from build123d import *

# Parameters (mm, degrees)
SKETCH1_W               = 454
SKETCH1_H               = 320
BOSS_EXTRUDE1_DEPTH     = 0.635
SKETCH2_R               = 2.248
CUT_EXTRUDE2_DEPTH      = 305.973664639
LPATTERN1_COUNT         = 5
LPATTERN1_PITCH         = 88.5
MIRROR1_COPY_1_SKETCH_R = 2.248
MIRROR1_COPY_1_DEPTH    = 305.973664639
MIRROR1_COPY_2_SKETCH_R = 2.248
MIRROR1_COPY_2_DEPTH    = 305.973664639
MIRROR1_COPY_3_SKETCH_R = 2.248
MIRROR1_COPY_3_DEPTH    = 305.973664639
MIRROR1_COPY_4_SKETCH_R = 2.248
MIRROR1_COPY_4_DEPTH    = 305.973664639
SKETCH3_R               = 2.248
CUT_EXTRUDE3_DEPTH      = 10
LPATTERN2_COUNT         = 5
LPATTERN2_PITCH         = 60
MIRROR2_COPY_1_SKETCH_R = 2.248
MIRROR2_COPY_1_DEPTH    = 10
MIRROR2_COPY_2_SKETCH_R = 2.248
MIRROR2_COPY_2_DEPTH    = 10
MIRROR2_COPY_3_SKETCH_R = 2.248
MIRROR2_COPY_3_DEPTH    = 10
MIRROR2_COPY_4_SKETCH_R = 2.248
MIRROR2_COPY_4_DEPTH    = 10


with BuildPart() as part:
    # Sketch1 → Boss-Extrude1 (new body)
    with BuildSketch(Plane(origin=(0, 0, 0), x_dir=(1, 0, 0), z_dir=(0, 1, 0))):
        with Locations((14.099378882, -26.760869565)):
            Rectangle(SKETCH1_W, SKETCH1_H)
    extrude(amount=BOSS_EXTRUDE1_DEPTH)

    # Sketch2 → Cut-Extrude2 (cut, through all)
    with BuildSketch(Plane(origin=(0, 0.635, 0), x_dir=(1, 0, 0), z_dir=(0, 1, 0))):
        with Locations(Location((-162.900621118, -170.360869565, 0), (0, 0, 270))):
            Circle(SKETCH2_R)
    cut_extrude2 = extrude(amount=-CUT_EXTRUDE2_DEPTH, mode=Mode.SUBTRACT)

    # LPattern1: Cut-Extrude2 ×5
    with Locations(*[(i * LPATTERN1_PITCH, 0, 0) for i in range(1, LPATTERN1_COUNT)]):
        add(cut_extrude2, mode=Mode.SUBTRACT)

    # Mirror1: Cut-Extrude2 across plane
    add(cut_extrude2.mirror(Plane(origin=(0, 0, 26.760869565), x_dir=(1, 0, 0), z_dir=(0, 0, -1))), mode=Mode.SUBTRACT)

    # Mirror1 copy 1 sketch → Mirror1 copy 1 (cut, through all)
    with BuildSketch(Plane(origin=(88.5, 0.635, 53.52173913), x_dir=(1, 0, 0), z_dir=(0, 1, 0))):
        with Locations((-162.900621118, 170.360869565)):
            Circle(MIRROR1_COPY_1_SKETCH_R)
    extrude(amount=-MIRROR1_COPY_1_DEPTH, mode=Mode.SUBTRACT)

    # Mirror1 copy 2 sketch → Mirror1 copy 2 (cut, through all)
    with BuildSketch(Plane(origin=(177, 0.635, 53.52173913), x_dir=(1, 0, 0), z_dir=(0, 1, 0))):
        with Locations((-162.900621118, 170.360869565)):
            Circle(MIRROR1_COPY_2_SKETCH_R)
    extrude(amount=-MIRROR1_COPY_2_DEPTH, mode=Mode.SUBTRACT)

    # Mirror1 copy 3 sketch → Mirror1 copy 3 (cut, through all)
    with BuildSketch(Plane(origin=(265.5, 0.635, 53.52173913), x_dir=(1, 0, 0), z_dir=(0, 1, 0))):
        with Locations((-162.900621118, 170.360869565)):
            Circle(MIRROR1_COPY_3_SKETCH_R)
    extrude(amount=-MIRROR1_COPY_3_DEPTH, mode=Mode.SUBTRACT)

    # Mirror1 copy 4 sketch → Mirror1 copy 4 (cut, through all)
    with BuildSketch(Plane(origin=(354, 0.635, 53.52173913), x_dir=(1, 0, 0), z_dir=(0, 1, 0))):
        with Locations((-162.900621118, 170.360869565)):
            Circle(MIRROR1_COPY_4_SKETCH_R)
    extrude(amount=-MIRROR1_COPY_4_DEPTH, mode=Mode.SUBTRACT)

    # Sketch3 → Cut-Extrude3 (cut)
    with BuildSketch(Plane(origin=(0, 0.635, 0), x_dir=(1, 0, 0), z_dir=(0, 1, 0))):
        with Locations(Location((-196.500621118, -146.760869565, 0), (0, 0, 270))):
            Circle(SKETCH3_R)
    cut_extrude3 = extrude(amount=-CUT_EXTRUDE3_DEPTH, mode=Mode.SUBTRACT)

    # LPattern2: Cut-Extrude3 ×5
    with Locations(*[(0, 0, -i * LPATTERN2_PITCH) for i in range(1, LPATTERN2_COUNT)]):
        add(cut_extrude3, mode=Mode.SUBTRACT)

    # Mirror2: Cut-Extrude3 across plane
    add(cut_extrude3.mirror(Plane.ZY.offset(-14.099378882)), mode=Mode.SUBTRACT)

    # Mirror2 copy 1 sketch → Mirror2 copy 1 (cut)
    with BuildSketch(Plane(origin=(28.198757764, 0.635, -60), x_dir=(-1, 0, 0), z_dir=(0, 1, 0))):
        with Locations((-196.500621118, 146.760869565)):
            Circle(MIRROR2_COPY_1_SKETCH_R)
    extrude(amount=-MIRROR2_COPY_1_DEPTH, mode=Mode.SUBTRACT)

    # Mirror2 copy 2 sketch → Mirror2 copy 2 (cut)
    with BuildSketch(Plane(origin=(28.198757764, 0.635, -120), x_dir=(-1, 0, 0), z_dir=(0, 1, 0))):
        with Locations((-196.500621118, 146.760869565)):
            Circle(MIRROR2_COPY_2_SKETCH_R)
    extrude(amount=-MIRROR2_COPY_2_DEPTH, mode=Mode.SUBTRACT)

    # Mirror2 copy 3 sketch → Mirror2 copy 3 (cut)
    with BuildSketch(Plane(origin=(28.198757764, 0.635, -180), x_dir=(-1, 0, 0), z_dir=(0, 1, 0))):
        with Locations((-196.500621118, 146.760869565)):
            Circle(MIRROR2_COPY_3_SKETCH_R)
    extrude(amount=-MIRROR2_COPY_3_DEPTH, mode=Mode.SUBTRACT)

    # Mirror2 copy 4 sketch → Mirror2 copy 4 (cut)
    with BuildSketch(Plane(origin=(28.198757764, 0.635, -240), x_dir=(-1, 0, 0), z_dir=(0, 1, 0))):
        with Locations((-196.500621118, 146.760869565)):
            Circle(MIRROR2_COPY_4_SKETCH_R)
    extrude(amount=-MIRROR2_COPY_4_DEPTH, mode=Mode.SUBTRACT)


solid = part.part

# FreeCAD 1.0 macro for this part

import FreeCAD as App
import Part
import Sketcher

V = App.Vector
Q = App.Units.Quantity

doc = App.newDocument("Part")
params = doc.addObject("Spreadsheet::Sheet", "Params")
for row, (alias, value) in enumerate([
    ("sketch1_width", "454 mm"),
    ("sketch1_height", "320 mm"),
    ("pad1_length", "0.635 mm"),
    ("linearpattern_pitch", "88.5 mm"),
    ("pocket6_length", "10 mm"),
    ("linearpattern2_pitch", "60 mm"),
    ("pocket7_length", "10 mm"),
    ("pocket8_length", "10 mm"),
    ("pocket9_length", "10 mm"),
    ("pocket10_length", "10 mm"),
], start=1):
    params.set(f"A{row}", alias)
    params.set(f"B{row}", "=" + value)
    params.setAlias(f"B{row}", alias)

body = doc.addObject("PartDesign::Body", "Body")

sketch1 = body.newObject("Sketcher::SketchObject", "Sketch")
sketch1.AttachmentSupport = (doc.getObject("XZ_Plane"), [""])
sketch1.MapMode = "FlatFace"
sketch1.addGeometry(Part.LineSegment(V(-213, -133, 0), V(-213, 187, 0)), False)
sketch1.addGeometry(Part.LineSegment(V(-213, 187, 0), V(241, 187, 0)), False)
sketch1.addGeometry(Part.LineSegment(V(241, 187, 0), V(241, -133, 0)), False)
sketch1.addGeometry(Part.LineSegment(V(241, -133, 0), V(-213, -133, 0)), False)
sketch1.addConstraint(Sketcher.Constraint("Coincident", 0, 2, 1, 1))
sketch1.addConstraint(Sketcher.Constraint("Coincident", 1, 2, 2, 1))
sketch1.addConstraint(Sketcher.Constraint("Coincident", 2, 2, 3, 1))
sketch1.addConstraint(Sketcher.Constraint("Coincident", 3, 2, 0, 1))
sketch1.addConstraint(Sketcher.Constraint("Vertical", 0))
sketch1.addConstraint(Sketcher.Constraint("Horizontal", 1))
sketch1.addConstraint(Sketcher.Constraint("Vertical", 2))
sketch1.addConstraint(Sketcher.Constraint("Horizontal", 3))
sketch1.addConstraint(Sketcher.Constraint("DistanceX", 1, 1, 1, 2, Q("454 mm")))
sketch1.addConstraint(Sketcher.Constraint("DistanceY", 0, 1, 0, 2, Q("320 mm")))
sketch1.addConstraint(Sketcher.Constraint("DistanceX", 0, 2, -1, 1, Q("212.900621 mm")))
sketch1.addConstraint(Sketcher.Constraint("DistanceY", -1, 1, 0, 2, Q("186.76087 mm")))
sketch1.setExpression("Constraints[8]", "Params.sketch1_width")
sketch1.setExpression("Constraints[9]", "Params.sketch1_height")
pad1 = body.newObject("PartDesign::Pad", "Pad")
pad1.Profile = sketch1
pad1.setExpression("Length", "Params.pad1_length")
pad1.Reversed = True

sketch2 = body.newObject("Sketcher::SketchObject", "Sketch001")
sketch2.AttachmentSupport = (doc.getObject("XZ_Plane"), [""])
sketch2.MapMode = "FlatFace"
sketch2.AttachmentOffset = App.Placement(V(0, 0, -0.635), App.Rotation())
sketch2.addGeometry(Part.Circle(V(-162.9, 170.4, 0), V(0, 0, 1), 2.2), False)
sketch2.addConstraint(Sketcher.Constraint("Diameter", 0, Q("4.496 mm")))
sketch2.addConstraint(Sketcher.Constraint("DistanceX", 0, 3, -1, 1, Q("162.900621 mm")))
sketch2.addConstraint(Sketcher.Constraint("DistanceY", -1, 1, 0, 3, Q("170.36087 mm")))
pocket1 = body.newObject("PartDesign::Pocket", "Pocket")
pocket1.Profile = sketch2
pocket1.Type = "ThroughAll"
pocket1.Reversed = True
doc.recompute()

linearpattern = body.newObject("PartDesign::LinearPattern", "LinearPattern")
linearpattern.Originals = [pocket1]
linearpattern.Direction = (doc.getObject("X_Axis"), [""])
linearpattern.Mode = "offset"
linearpattern.setExpression("Offset", "Params.linearpattern_pitch")
linearpattern.Occurrences = 5
body.Tip = linearpattern
doc.recompute()

datumplane = body.newObject("PartDesign::Plane", "DatumPlane")
datumplane.AttachmentSupport = (doc.getObject("XY_Plane"), [""])
datumplane.MapMode = "FlatFace"
datumplane.AttachmentOffset = App.Placement(V(0, 0, 26.76087), App.Rotation())
mirrored = body.newObject("PartDesign::Mirrored", "Mirrored")
mirrored.Originals = [pocket1]
mirrored.MirrorPlane = (datumplane, [""])
body.Tip = mirrored

sketch3 = body.newObject("Sketcher::SketchObject", "Sketch002")
sketch3.AttachmentSupport = (doc.getObject("XZ_Plane"), [""])
sketch3.MapMode = "FlatFace"
sketch3.AttachmentOffset = App.Placement(V(0, 0, -0.635), App.Rotation())
sketch3.addGeometry(Part.Circle(V(-74.4, -116.8, 0), V(0, 0, 1), 2.2), False)
sketch3.addConstraint(Sketcher.Constraint("Diameter", 0, Q("4.496 mm")))
sketch3.addConstraint(Sketcher.Constraint("DistanceX", 0, 3, -1, 1, Q("74.400621 mm")))
sketch3.addConstraint(Sketcher.Constraint("DistanceY", 0, 3, -1, 1, Q("116.83913 mm")))
pocket2 = body.newObject("PartDesign::Pocket", "Pocket001")
pocket2.Profile = sketch3
pocket2.Type = "ThroughAll"
pocket2.Reversed = True

sketch4 = body.newObject("Sketcher::SketchObject", "Sketch003")
sketch4.AttachmentSupport = (doc.getObject("XZ_Plane"), [""])
sketch4.MapMode = "FlatFace"
sketch4.AttachmentOffset = App.Placement(V(0, 0, -0.635), App.Rotation())
sketch4.addGeometry(Part.Circle(V(14.1, -116.8, 0), V(0, 0, 1), 2.2), False)
sketch4.addConstraint(Sketcher.Constraint("Diameter", 0, Q("4.496 mm")))
sketch4.addConstraint(Sketcher.Constraint("DistanceX", -1, 1, 0, 3, Q("14.099379 mm")))
sketch4.addConstraint(Sketcher.Constraint("DistanceY", 0, 3, -1, 1, Q("116.83913 mm")))
pocket3 = body.newObject("PartDesign::Pocket", "Pocket002")
pocket3.Profile = sketch4
pocket3.Type = "ThroughAll"
pocket3.Reversed = True

sketch5 = body.newObject("Sketcher::SketchObject", "Sketch004")
sketch5.AttachmentSupport = (doc.getObject("XZ_Plane"), [""])
sketch5.MapMode = "FlatFace"
sketch5.AttachmentOffset = App.Placement(V(0, 0, -0.635), App.Rotation())
sketch5.addGeometry(Part.Circle(V(102.6, -116.8, 0), V(0, 0, 1), 2.2), False)
sketch5.addConstraint(Sketcher.Constraint("Diameter", 0, Q("4.496 mm")))
sketch5.addConstraint(Sketcher.Constraint("DistanceX", -1, 1, 0, 3, Q("102.599379 mm")))
sketch5.addConstraint(Sketcher.Constraint("DistanceY", 0, 3, -1, 1, Q("116.83913 mm")))
pocket4 = body.newObject("PartDesign::Pocket", "Pocket003")
pocket4.Profile = sketch5
pocket4.Type = "ThroughAll"
pocket4.Reversed = True

sketch6 = body.newObject("Sketcher::SketchObject", "Sketch005")
sketch6.AttachmentSupport = (doc.getObject("XZ_Plane"), [""])
sketch6.MapMode = "FlatFace"
sketch6.AttachmentOffset = App.Placement(V(0, 0, -0.635), App.Rotation())
sketch6.addGeometry(Part.Circle(V(191.1, -116.8, 0), V(0, 0, 1), 2.2), False)
sketch6.addConstraint(Sketcher.Constraint("Diameter", 0, Q("4.496 mm")))
sketch6.addConstraint(Sketcher.Constraint("DistanceX", -1, 1, 0, 3, Q("191.099379 mm")))
sketch6.addConstraint(Sketcher.Constraint("DistanceY", 0, 3, -1, 1, Q("116.83913 mm")))
pocket5 = body.newObject("PartDesign::Pocket", "Pocket004")
pocket5.Profile = sketch6
pocket5.Type = "ThroughAll"
pocket5.Reversed = True

sketch7 = body.newObject("Sketcher::SketchObject", "Sketch006")
sketch7.AttachmentSupport = (doc.getObject("XZ_Plane"), [""])
sketch7.MapMode = "FlatFace"
sketch7.AttachmentOffset = App.Placement(V(0, 0, -0.635), App.Rotation())
sketch7.addGeometry(Part.Circle(V(-196.5, 146.8, 0), V(0, 0, 1), 2.2), False)
sketch7.addConstraint(Sketcher.Constraint("Diameter", 0, Q("4.496 mm")))
sketch7.addConstraint(Sketcher.Constraint("DistanceX", 0, 3, -1, 1, Q("196.500621 mm")))
sketch7.addConstraint(Sketcher.Constraint("DistanceY", -1, 1, 0, 3, Q("146.76087 mm")))
pocket6 = body.newObject("PartDesign::Pocket", "Pocket005")
pocket6.Profile = sketch7
pocket6.setExpression("Length", "Params.pocket6_length")
pocket6.Reversed = True
doc.recompute()

linearpattern2 = body.newObject("PartDesign::LinearPattern", "LinearPattern001")
linearpattern2.Originals = [pocket6]
linearpattern2.Direction = (doc.getObject("Z_Axis"), [""])
linearpattern2.Mode = "offset"
linearpattern2.setExpression("Offset", "Params.linearpattern2_pitch")
linearpattern2.Occurrences = 5
linearpattern2.Reversed = True
body.Tip = linearpattern2
doc.recompute()

datumplane2 = body.newObject("PartDesign::Plane", "DatumPlane001")
datumplane2.AttachmentSupport = (doc.getObject("YZ_Plane"), [""])
datumplane2.MapMode = "FlatFace"
datumplane2.AttachmentOffset = App.Placement(V(0, 0, 14.099379), App.Rotation())
mirrored2 = body.newObject("PartDesign::Mirrored", "Mirrored001")
mirrored2.Originals = [pocket6]
mirrored2.MirrorPlane = (datumplane2, [""])
body.Tip = mirrored2

sketch8 = body.newObject("Sketcher::SketchObject", "Sketch007")
sketch8.AttachmentSupport = (doc.getObject("XZ_Plane"), [""])
sketch8.MapMode = "FlatFace"
sketch8.AttachmentOffset = App.Placement(V(0, 0, -0.635), App.Rotation())
sketch8.addGeometry(Part.Circle(V(224.7, 86.8, 0), V(0, 0, 1), 2.2), False)
sketch8.addConstraint(Sketcher.Constraint("Diameter", 0, Q("4.496 mm")))
sketch8.addConstraint(Sketcher.Constraint("DistanceX", -1, 1, 0, 3, Q("224.699379 mm")))
sketch8.addConstraint(Sketcher.Constraint("DistanceY", -1, 1, 0, 3, Q("86.76087 mm")))
pocket7 = body.newObject("PartDesign::Pocket", "Pocket006")
pocket7.Profile = sketch8
pocket7.setExpression("Length", "Params.pocket7_length")
pocket7.Reversed = True

sketch9 = body.newObject("Sketcher::SketchObject", "Sketch008")
sketch9.AttachmentSupport = (doc.getObject("XZ_Plane"), [""])
sketch9.MapMode = "FlatFace"
sketch9.AttachmentOffset = App.Placement(V(0, 0, -0.635), App.Rotation())
sketch9.addGeometry(Part.Circle(V(224.7, 26.8, 0), V(0, 0, 1), 2.2), False)
sketch9.addConstraint(Sketcher.Constraint("Diameter", 0, Q("4.496 mm")))
sketch9.addConstraint(Sketcher.Constraint("DistanceX", -1, 1, 0, 3, Q("224.699379 mm")))
sketch9.addConstraint(Sketcher.Constraint("DistanceY", -1, 1, 0, 3, Q("26.76087 mm")))
pocket8 = body.newObject("PartDesign::Pocket", "Pocket007")
pocket8.Profile = sketch9
pocket8.setExpression("Length", "Params.pocket8_length")
pocket8.Reversed = True

sketch10 = body.newObject("Sketcher::SketchObject", "Sketch009")
sketch10.AttachmentSupport = (doc.getObject("XZ_Plane"), [""])
sketch10.MapMode = "FlatFace"
sketch10.AttachmentOffset = App.Placement(V(0, 0, -0.635), App.Rotation())
sketch10.addGeometry(Part.Circle(V(224.7, -33.2, 0), V(0, 0, 1), 2.2), False)
sketch10.addConstraint(Sketcher.Constraint("Diameter", 0, Q("4.496 mm")))
sketch10.addConstraint(Sketcher.Constraint("DistanceX", -1, 1, 0, 3, Q("224.699379 mm")))
sketch10.addConstraint(Sketcher.Constraint("DistanceY", 0, 3, -1, 1, Q("33.23913 mm")))
pocket9 = body.newObject("PartDesign::Pocket", "Pocket008")
pocket9.Profile = sketch10
pocket9.setExpression("Length", "Params.pocket9_length")
pocket9.Reversed = True

sketch11 = body.newObject("Sketcher::SketchObject", "Sketch010")
sketch11.AttachmentSupport = (doc.getObject("XZ_Plane"), [""])
sketch11.MapMode = "FlatFace"
sketch11.AttachmentOffset = App.Placement(V(0, 0, -0.635), App.Rotation())
sketch11.addGeometry(Part.Circle(V(224.7, -93.2, 0), V(0, 0, 1), 2.2), False)
sketch11.addConstraint(Sketcher.Constraint("Diameter", 0, Q("4.496 mm")))
sketch11.addConstraint(Sketcher.Constraint("DistanceX", -1, 1, 0, 3, Q("224.699379 mm")))
sketch11.addConstraint(Sketcher.Constraint("DistanceY", 0, 3, -1, 1, Q("93.23913 mm")))
pocket10 = body.newObject("PartDesign::Pocket", "Pocket009")
pocket10.Profile = sketch11
pocket10.setExpression("Length", "Params.pocket10_length")
pocket10.Reversed = True

doc.recompute()
